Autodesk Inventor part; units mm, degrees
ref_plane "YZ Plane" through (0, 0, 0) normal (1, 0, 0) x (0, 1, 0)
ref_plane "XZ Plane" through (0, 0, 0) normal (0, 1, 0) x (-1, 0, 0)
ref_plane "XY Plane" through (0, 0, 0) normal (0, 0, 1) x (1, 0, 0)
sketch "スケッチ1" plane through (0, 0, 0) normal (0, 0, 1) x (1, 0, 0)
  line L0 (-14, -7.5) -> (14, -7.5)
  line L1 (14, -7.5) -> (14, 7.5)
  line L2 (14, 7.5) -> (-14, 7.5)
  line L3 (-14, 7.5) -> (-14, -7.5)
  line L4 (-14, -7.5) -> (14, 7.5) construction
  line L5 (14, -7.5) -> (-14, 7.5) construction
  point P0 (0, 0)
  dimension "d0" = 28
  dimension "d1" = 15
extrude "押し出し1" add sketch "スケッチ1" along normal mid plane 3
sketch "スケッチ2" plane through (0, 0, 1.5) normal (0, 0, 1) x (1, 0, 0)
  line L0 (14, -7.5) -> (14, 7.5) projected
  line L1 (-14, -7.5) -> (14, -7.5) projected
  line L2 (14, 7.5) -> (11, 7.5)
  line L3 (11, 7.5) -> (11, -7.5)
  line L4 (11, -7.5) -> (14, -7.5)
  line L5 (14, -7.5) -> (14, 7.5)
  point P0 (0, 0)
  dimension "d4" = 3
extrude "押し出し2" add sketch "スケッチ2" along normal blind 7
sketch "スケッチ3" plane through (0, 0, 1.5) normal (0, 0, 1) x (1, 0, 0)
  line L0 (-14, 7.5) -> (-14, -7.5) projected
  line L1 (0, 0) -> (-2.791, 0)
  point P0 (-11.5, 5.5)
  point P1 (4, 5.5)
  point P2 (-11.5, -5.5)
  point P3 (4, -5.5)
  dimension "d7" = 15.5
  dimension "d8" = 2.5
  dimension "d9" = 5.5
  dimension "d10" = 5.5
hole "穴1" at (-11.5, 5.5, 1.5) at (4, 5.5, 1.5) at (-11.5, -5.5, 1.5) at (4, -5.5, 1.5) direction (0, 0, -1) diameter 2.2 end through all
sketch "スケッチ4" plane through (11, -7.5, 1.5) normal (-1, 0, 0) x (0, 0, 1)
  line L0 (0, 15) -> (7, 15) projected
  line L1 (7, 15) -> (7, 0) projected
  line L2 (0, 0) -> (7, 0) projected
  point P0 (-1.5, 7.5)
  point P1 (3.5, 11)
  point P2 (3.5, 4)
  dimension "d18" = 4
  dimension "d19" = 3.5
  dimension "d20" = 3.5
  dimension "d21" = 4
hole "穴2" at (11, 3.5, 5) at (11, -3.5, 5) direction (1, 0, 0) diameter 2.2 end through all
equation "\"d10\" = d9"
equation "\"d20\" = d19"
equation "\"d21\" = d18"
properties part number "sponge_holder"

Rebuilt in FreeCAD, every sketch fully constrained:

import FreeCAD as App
import Part
import Sketcher
Q = App.Units.Quantity


def add_polygon(sketch, points):
    """Adds a closed chain of lines whose ends are joined by coincident constraints."""
    first, n = sketch.GeometryCount, len(points)
    for a, b in zip(points, points[1:] + points[:1]):
        sketch.addGeometry(Part.LineSegment(App.Vector(*a, 0), App.Vector(*b, 0)), False)
    for i in range(n):
        sketch.addConstraint(Sketcher.Constraint("Coincident", first + i, 2, first + (i + 1) % n, 1))

doc = App.newDocument("Part")
body = doc.addObject("PartDesign::Body", "Body")

# Sketch on XY plane
sketch1 = body.newObject("Sketcher::SketchObject", "Sketch")
sketch1.AttachmentSupport = (doc.getObject("XY_Plane"), [""])
sketch1.MapMode = "FlatFace"
add_polygon(sketch1, [(-14, 8), (-14, -8), (14, -8), (14, 8)])  # lines 0-3
sketch1.addConstraint([
    Sketcher.Constraint("Vertical", 0),
    Sketcher.Constraint("Horizontal", 1),
    Sketcher.Constraint("Vertical", 2),
    Sketcher.Constraint("Horizontal", 3),
    Sketcher.Constraint("Symmetric", 0, 2, 2, 2, -1, 1),
    Sketcher.Constraint("DistanceX", 1, 1, 1, 2, Q("28 mm")),
    Sketcher.Constraint("DistanceY", 0, 2, 0, 1, Q("15 mm")),
])
pad1 = body.newObject("PartDesign::Pad", "Pad")
pad1.Profile = sketch1
pad1.Length = 3
pad1.Midplane = True

# Sketch on XY plane
sketch2 = body.newObject("Sketcher::SketchObject", "Sketch001")
sketch2.AttachmentSupport = (doc.getObject("XY_Plane"), [""])
sketch2.MapMode = "FlatFace"
sketch2.AttachmentOffset = App.Placement(App.Vector(0, 0, 1.5), App.Rotation())
add_polygon(sketch2, [(11, -7.5), (14, -7.5), (14, 7.5), (11, 7.5)])  # lines 0-3
sketch2.addConstraint([
    Sketcher.Constraint("Horizontal", 0),
    Sketcher.Constraint("Vertical", 1),
    Sketcher.Constraint("Horizontal", 2),
    Sketcher.Constraint("Vertical", 3),
    Sketcher.Constraint("DistanceX", 0, 1, 0, 2, Q("3 mm")),
    Sketcher.Constraint("DistanceY", 1, 1, 1, 2, Q("15 mm")),
    Sketcher.Constraint("DistanceX", -1, 1, 0, 2, Q("14 mm")),
    Sketcher.Constraint("DistanceY", 0, 2, -1, 1, Q("7.5 mm")),
])
pad2 = body.newObject("PartDesign::Pad", "Pad001")
pad2.Profile = sketch2
pad2.Length = 7

# Sketch on XY plane
sketch3 = body.newObject("Sketcher::SketchObject", "Sketch002")
sketch3.AttachmentSupport = (doc.getObject("XY_Plane"), [""])
sketch3.MapMode = "FlatFace"
sketch3.AttachmentOffset = App.Placement(App.Vector(0, 0, 1.5), App.Rotation())
sketch3.addGeometry([
    Part.Circle(App.Vector(-11.5, 5.5, 0), App.Vector(0, 0, 1), 1.1),
    Part.Circle(App.Vector(4, 5.5, 0), App.Vector(0, 0, 1), 1.1),
    Part.Circle(App.Vector(-11.5, -5.5, 0), App.Vector(0, 0, 1), 1.1),
    Part.Circle(App.Vector(4, -5.5, 0), App.Vector(0, 0, 1), 1.1),
], False)
sketch3.addConstraint([
    Sketcher.Constraint("Equal", 0, 1),
    Sketcher.Constraint("Equal", 1, 2),
    Sketcher.Constraint("Equal", 2, 3),
    Sketcher.Constraint("Symmetric", 0, 3, 2, 3, -1),
    Sketcher.Constraint("Symmetric", 1, 3, 3, 3, -1),
    Sketcher.Constraint("Horizontal", 0, 3, 1, 3),
    Sketcher.Constraint("Diameter", 0, Q("2.2 mm")),
    Sketcher.Constraint("DistanceX", -1, 1, 1, 3, Q("4 mm")),
    Sketcher.Constraint("DistanceY", 2, 3, 0, 3, Q("11 mm")),
    Sketcher.Constraint("DistanceX", 0, 3, -1, 1, Q("11.5 mm")),
])
doc.recompute()
hole = body.newObject("PartDesign::Hole", "Hole")
hole.Profile = sketch3
hole.ThreadType = "None"
hole.Diameter = 2.2
hole.DepthType = "ThroughAll"

# Sketch on YZ plane
sketch4 = body.newObject("Sketcher::SketchObject", "Sketch003")
sketch4.AttachmentSupport = (doc.getObject("YZ_Plane"), [""])
sketch4.MapMode = "FlatFace"
sketch4.AttachmentOffset = App.Placement(App.Vector(0, 0, 11), App.Rotation())
sketch4.addGeometry([
    Part.Circle(App.Vector(3.5, 5, 0), App.Vector(0, 0, 1), 1.1),
    Part.Circle(App.Vector(-3.5, 5, 0), App.Vector(0, 0, 1), 1.1),
], False)
sketch4.addConstraint([
    Sketcher.Constraint("Equal", 0, 1),
    Sketcher.Constraint("Symmetric", 0, 3, 1, 3, -2),
    Sketcher.Constraint("Diameter", 0, Q("2.2 mm")),
    Sketcher.Constraint("DistanceY", -1, 1, 0, 3, Q("5 mm")),
    Sketcher.Constraint("DistanceX", 1, 3, 0, 3, Q("7 mm")),
])
doc.recompute()
hole2 = body.newObject("PartDesign::Hole", "Hole001")
hole2.Profile = sketch4
hole2.ThreadType = "None"
hole2.Diameter = 2.2
hole2.DepthType = "ThroughAll"
hole2.Reversed = True

doc.recompute()
